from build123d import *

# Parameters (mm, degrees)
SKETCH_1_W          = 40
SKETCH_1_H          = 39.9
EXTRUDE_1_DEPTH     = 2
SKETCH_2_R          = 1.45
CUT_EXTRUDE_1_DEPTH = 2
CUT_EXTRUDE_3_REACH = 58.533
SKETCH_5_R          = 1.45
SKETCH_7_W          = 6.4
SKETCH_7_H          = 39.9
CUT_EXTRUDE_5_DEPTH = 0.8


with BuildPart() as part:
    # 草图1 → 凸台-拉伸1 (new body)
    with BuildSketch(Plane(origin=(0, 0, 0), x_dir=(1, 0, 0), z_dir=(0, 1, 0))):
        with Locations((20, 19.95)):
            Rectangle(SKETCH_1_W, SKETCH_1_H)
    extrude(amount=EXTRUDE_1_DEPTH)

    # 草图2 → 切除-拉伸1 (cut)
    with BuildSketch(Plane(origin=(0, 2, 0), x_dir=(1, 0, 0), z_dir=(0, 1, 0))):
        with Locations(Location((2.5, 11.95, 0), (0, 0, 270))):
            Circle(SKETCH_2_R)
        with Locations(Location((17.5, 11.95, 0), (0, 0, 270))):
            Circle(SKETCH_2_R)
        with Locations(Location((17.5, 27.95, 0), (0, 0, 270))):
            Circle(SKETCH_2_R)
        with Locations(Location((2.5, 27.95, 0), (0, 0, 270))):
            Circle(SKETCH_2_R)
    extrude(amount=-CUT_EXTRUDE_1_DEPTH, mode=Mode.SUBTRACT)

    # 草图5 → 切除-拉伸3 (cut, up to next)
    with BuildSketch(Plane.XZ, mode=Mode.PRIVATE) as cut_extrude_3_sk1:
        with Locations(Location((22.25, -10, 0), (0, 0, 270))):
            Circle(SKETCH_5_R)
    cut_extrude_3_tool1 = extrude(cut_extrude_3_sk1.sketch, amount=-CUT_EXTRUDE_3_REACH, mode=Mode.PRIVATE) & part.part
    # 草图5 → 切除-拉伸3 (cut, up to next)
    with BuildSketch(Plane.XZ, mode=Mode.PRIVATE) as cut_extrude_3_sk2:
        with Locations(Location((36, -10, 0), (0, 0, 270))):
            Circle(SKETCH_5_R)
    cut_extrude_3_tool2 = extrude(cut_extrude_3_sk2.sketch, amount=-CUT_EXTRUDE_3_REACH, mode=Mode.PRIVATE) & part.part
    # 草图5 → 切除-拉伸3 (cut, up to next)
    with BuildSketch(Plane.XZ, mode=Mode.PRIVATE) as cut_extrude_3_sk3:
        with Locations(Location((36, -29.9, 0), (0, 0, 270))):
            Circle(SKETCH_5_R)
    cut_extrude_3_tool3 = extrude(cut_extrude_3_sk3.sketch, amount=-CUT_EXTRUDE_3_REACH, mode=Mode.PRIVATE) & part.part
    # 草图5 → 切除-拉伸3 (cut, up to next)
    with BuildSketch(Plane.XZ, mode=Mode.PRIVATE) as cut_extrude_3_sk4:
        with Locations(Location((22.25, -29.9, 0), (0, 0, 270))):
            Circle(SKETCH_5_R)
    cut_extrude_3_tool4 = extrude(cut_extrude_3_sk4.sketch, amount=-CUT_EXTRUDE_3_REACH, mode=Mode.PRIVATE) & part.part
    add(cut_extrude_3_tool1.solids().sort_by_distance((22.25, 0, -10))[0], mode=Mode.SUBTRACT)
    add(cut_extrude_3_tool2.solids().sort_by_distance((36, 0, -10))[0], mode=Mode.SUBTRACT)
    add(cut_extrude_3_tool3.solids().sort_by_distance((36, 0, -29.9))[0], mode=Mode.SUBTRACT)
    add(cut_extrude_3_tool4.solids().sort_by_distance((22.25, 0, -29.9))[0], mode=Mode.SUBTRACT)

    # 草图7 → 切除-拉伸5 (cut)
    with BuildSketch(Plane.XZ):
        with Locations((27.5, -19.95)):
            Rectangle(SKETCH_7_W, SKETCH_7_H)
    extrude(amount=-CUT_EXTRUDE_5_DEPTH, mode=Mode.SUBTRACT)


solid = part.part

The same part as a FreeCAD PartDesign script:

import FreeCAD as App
import Part
import Sketcher
from FreeCAD import Vector
Q = App.Units.Quantity

doc = App.newDocument("Part")
params = doc.addObject("Spreadsheet::Sheet", "Params")
for row, (alias, value) in enumerate([
    ("sketch1_width", "40 mm"),
    ("sketch1_height", "39.9 mm"),
    ("pad1_length", "2 mm"),
    ("sketch2_diameter", "2.9 mm"),
    ("pocket1_length", "2 mm"),
    ("sketch3_diameter", "2.9 mm"),
    ("sketch4_diameter", "2.9 mm"),
    ("sketch5_diameter", "2.9 mm"),
    ("sketch6_diameter", "2.9 mm"),
    ("sketch7_width", "6.4 mm"),
    ("sketch7_height", "39.9 mm"),
    ("pocket6_length", "0.8 mm"),
], start=1):
    params.set(f"A{row}", alias)
    params.set(f"B{row}", "=" + value)
    params.setAlias(f"B{row}", alias)

body = doc.addObject("PartDesign::Body", "Body")

# Sketch on XZ plane
sketch1 = body.newObject("Sketcher::SketchObject", "Sketch")
sketch1.AttachmentSupport = (doc.getObject("XZ_Plane"), [""])
sketch1.MapMode = "FlatFace"
sketch1.addGeometry([
    Part.LineSegment(Vector(0, -40, 0), Vector(0, 0, 0)),
    Part.LineSegment(Vector(0, 0, 0), Vector(40, 0, 0)),
    Part.LineSegment(Vector(40, 0, 0), Vector(40, -40, 0)),
    Part.LineSegment(Vector(40, -40, 0), Vector(0, -40, 0)),
], False)
sketch1.addConstraint([
    Sketcher.Constraint("Coincident", 0, 2, 1, 1),
    Sketcher.Constraint("Coincident", 1, 2, 2, 1),
    Sketcher.Constraint("Coincident", 2, 2, 3, 1),
    Sketcher.Constraint("Coincident", 3, 2, 0, 1),
    Sketcher.Constraint("Vertical", 0),
    Sketcher.Constraint("Horizontal", 1),
    Sketcher.Constraint("Vertical", 2),
    Sketcher.Constraint("Horizontal", 3),
    Sketcher.Constraint("Coincident", 0, 2, -1, 1),
    Sketcher.Constraint("DistanceX", 1, 1, 1, 2, Q("40 mm")),
    Sketcher.Constraint("DistanceY", 0, 1, 0, 2, Q("39.9 mm")),
])
sketch1.setExpression("Constraints[9]", "Params.sketch1_width")
sketch1.setExpression("Constraints[10]", "Params.sketch1_height")
pad1 = body.newObject("PartDesign::Pad", "Pad")
pad1.Profile = sketch1
pad1.setExpression("Length", "Params.pad1_length")
pad1.Reversed = True

# Sketch on XZ plane
sketch2 = body.newObject("Sketcher::SketchObject", "Sketch001")
sketch2.AttachmentSupport = (doc.getObject("XZ_Plane"), [""])
sketch2.MapMode = "FlatFace"
sketch2.AttachmentOffset = App.Placement(Vector(0, 0, -2), App.Rotation())
sketch2.addGeometry([
    Part.Circle(Vector(2.5, -11.9, 0), Vector(0, 0, 1), 1.4),
    Part.Circle(Vector(17.5, -11.9, 0), Vector(0, 0, 1), 1.4),
    Part.Circle(Vector(17.5, -27.9, 0), Vector(0, 0, 1), 1.4),
    Part.Circle(Vector(2.5, -27.9, 0), Vector(0, 0, 1), 1.4),
], False)
sketch2.addConstraint([
    Sketcher.Constraint("Equal", 0, 1),
    Sketcher.Constraint("Equal", 1, 2),
    Sketcher.Constraint("Equal", 2, 3),
    Sketcher.Constraint("Horizontal", 0, 3, 1, 3),
    Sketcher.Constraint("Horizontal", 2, 3, 3, 3),
    Sketcher.Constraint("Vertical", 1, 3, 2, 3),
    Sketcher.Constraint("Vertical", 0, 3, 3, 3),
    Sketcher.Constraint("Diameter", 0, Q("2.9 mm")),
    Sketcher.Constraint("DistanceX", 0, 3, 1, 3, Q("15 mm")),
    Sketcher.Constraint("DistanceY", 2, 3, 1, 3, Q("16 mm")),
    Sketcher.Constraint("DistanceX", -1, 1, 0, 3, Q("2.5 mm")),
    Sketcher.Constraint("DistanceY", 0, 3, -1, 1, Q("11.95 mm")),
])
sketch2.setExpression("Constraints[7]", "Params.sketch2_diameter")
pocket1 = body.newObject("PartDesign::Pocket", "Pocket")
pocket1.Profile = sketch2
pocket1.setExpression("Length", "Params.pocket1_length")
pocket1.Reversed = True

# Sketch on XZ plane
sketch3 = body.newObject("Sketcher::SketchObject", "Sketch002")
sketch3.AttachmentSupport = (doc.getObject("XZ_Plane"), [""])
sketch3.MapMode = "FlatFace"
sketch3.addGeometry(Part.Circle(Vector(22.2, -10, 0), Vector(0, 0, 1), 1.4), False)
sketch3.addConstraint([
    Sketcher.Constraint("Diameter", 0, Q("2.9 mm")),
    Sketcher.Constraint("DistanceY", 0, 3, -1, 1, Q("10 mm")),
    Sketcher.Constraint("DistanceX", -1, 1, 0, 3, Q("22.25 mm")),
])
sketch3.setExpression("Constraints[0]", "Params.sketch3_diameter")
pocket2 = body.newObject("PartDesign::Pocket", "Pocket001")
pocket2.Profile = sketch3
pocket2.Type = "UpToFirst"

# Sketch on XZ plane
sketch4 = body.newObject("Sketcher::SketchObject", "Sketch003")
sketch4.AttachmentSupport = (doc.getObject("XZ_Plane"), [""])
sketch4.MapMode = "FlatFace"
sketch4.addGeometry(Part.Circle(Vector(36, -10, 0), Vector(0, 0, 1), 1.4), False)
sketch4.addConstraint([
    Sketcher.Constraint("Diameter", 0, Q("2.9 mm")),
    Sketcher.Constraint("DistanceX", -1, 1, 0, 3, Q("36 mm")),
    Sketcher.Constraint("DistanceY", 0, 3, -1, 1, Q("10 mm")),
])
sketch4.setExpression("Constraints[0]", "Params.sketch4_diameter")
pocket3 = body.newObject("PartDesign::Pocket", "Pocket002")
pocket3.Profile = sketch4
pocket3.Type = "UpToFirst"

# Sketch on XZ plane
sketch5 = body.newObject("Sketcher::SketchObject", "Sketch004")
sketch5.AttachmentSupport = (doc.getObject("XZ_Plane"), [""])
sketch5.MapMode = "FlatFace"
sketch5.addGeometry(Part.Circle(Vector(36, -29.9, 0), Vector(0, 0, 1), 1.4), False)
sketch5.addConstraint([
    Sketcher.Constraint("Diameter", 0, Q("2.9 mm")),
    Sketcher.Constraint("DistanceX", -1, 1, 0, 3, Q("36 mm")),
    Sketcher.Constraint("DistanceY", 0, 3, -1, 1, Q("29.9 mm")),
])
sketch5.setExpression("Constraints[0]", "Params.sketch5_diameter")
pocket4 = body.newObject("PartDesign::Pocket", "Pocket003")
pocket4.Profile = sketch5
pocket4.Type = "UpToFirst"

# Sketch on XZ plane
sketch6 = body.newObject("Sketcher::SketchObject", "Sketch005")
sketch6.AttachmentSupport = (doc.getObject("XZ_Plane"), [""])
sketch6.MapMode = "FlatFace"
sketch6.addGeometry(Part.Circle(Vector(22.2, -29.9, 0), Vector(0, 0, 1), 1.4), False)
sketch6.addConstraint([
    Sketcher.Constraint("Diameter", 0, Q("2.9 mm")),
    Sketcher.Constraint("DistanceY", 0, 3, -1, 1, Q("29.9 mm")),
    Sketcher.Constraint("DistanceX", -1, 1, 0, 3, Q("22.25 mm")),
])
sketch6.setExpression("Constraints[0]", "Params.sketch6_diameter")
pocket5 = body.newObject("PartDesign::Pocket", "Pocket004")
pocket5.Profile = sketch6
pocket5.Type = "UpToFirst"

# Sketch on XZ plane
sketch7 = body.newObject("Sketcher::SketchObject", "Sketch006")
sketch7.AttachmentSupport = (doc.getObject("XZ_Plane"), [""])
sketch7.MapMode = "FlatFace"
sketch7.addGeometry([
    Part.LineSegment(Vector(24, 0, 0), Vector(24, -40, 0)),
    Part.LineSegment(Vector(24, -40, 0), Vector(31, -40, 0)),
    Part.LineSegment(Vector(31, -40, 0), Vector(31, 0, 0)),
    Part.LineSegment(Vector(31, 0, 0), Vector(24, 0, 0)),
], False)
sketch7.addConstraint([
    Sketcher.Constraint("Coincident", 0, 2, 1, 1),
    Sketcher.Constraint("Coincident", 1, 2, 2, 1),
    Sketcher.Constraint("Coincident", 2, 2, 3, 1),
    Sketcher.Constraint("Coincident", 3, 2, 0, 1),
    Sketcher.Constraint("Vertical", 0),
    Sketcher.Constraint("Horizontal", 1),
    Sketcher.Constraint("Vertical", 2),
    Sketcher.Constraint("Horizontal", 3),
    Sketcher.Constraint("PointOnObject", 2, 2, -1),
    Sketcher.Constraint("DistanceX", 1, 1, 1, 2, Q("6.4 mm")),
    Sketcher.Constraint("DistanceY", 0, 2, 0, 1, Q("39.9 mm")),
    Sketcher.Constraint("DistanceX", -1, 1, 0, 2, Q("24.3 mm")),
])
sketch7.setExpression("Constraints[9]", "Params.sketch7_width")
sketch7.setExpression("Constraints[10]", "Params.sketch7_height")
pocket6 = body.newObject("PartDesign::Pocket", "Pocket005")
pocket6.Profile = sketch7
pocket6.setExpression("Length", "Params.pocket6_length")

doc.recompute()
